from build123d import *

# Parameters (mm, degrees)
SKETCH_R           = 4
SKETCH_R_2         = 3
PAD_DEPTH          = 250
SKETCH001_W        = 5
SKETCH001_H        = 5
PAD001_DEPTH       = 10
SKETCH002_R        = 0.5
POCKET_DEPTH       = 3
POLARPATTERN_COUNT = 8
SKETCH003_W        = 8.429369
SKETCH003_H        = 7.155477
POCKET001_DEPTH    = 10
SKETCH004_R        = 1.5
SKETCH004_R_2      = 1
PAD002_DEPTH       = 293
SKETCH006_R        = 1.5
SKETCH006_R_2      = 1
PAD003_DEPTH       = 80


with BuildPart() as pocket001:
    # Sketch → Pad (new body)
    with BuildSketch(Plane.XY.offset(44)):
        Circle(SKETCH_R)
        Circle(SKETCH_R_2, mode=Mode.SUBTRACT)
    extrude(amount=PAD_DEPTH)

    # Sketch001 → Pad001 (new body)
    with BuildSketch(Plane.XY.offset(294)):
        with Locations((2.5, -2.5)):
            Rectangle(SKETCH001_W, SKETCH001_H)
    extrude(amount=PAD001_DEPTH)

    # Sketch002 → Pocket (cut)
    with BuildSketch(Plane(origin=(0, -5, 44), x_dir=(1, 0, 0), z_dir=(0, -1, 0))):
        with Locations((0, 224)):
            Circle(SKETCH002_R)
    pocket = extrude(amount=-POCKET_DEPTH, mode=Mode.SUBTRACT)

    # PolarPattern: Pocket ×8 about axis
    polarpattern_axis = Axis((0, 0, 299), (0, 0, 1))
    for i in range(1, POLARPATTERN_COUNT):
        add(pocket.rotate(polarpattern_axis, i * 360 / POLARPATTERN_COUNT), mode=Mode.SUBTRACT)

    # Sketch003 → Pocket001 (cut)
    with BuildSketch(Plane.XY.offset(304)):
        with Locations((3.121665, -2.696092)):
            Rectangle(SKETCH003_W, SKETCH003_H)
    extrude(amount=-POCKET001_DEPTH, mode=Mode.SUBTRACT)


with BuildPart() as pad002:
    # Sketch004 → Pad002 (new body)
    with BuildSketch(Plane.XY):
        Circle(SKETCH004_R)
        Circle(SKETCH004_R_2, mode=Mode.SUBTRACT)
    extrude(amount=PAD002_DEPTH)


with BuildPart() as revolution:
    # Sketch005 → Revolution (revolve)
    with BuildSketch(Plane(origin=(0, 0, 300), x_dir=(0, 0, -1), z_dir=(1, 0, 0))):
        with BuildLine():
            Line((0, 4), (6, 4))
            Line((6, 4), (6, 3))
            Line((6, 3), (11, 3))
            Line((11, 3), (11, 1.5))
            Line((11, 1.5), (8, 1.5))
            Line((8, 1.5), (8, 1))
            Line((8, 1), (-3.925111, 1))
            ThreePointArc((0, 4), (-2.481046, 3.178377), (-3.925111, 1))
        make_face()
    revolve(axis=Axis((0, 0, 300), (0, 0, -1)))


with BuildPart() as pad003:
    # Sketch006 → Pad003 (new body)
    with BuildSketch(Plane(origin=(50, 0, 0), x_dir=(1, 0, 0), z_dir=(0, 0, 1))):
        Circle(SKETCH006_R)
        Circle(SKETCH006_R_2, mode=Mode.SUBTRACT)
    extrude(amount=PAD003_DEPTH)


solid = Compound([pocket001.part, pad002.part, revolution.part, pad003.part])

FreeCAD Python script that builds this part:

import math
import FreeCAD as App
import Part
import Sketcher
from FreeCAD import Vector

doc = App.newDocument("Part")
body = doc.addObject("PartDesign::Body", "Body")

# Sketch on XY plane
sketch1 = doc.addObject("Sketcher::SketchObject", "Sketch")
body.addObject(sketch1)
sketch1.AttachmentSupport = (doc.XY_Plane, [""])
sketch1.MapMode = "FlatFace"
sketch1.AttachmentOffset = App.Placement(Vector(0, 0, 44), App.Rotation())
sketch1.addGeometry([
    Part.Circle(Vector(0, 0, 0), Vector(0, 0, 1), 4),
    Part.Circle(Vector(0, 0, 0), Vector(0, 0, 1), 3),
], False)
sketch1.addConstraint([
    Sketcher.Constraint("Coincident", 0, 3, -1, 1),
    Sketcher.Constraint("Coincident", 1, 3, -1, 1),
    Sketcher.Constraint("Diameter", 0, 8.0),
    Sketcher.Constraint("Diameter", 1, 6.0),
])
pad1 = doc.addObject("PartDesign::Pad", "Pad")
body.addObject(pad1)
pad1.Profile = sketch1
pad1.Length = 250

# Sketch on XY plane
sketch2 = doc.addObject("Sketcher::SketchObject", "Sketch001")
body.addObject(sketch2)
sketch2.AttachmentSupport = (doc.XY_Plane, [""])
sketch2.MapMode = "FlatFace"
sketch2.AttachmentOffset = App.Placement(Vector(0, 0, 294), App.Rotation())
sketch2.addGeometry([
    Part.LineSegment(Vector(0, 0, 0), Vector(0, -5, 0)),
    Part.LineSegment(Vector(0, -5, 0), Vector(5, -5, 0)),
    Part.LineSegment(Vector(5, -5, 0), Vector(5, 0, 0)),
    Part.LineSegment(Vector(5, 0, 0), Vector(0, 0, 0)),
], False)
sketch2.addConstraint([
    Sketcher.Constraint("Coincident", 0, 2, 1, 1),
    Sketcher.Constraint("Coincident", 1, 2, 2, 1),
    Sketcher.Constraint("Coincident", 2, 2, 3, 1),
    Sketcher.Constraint("Coincident", 3, 2, 0, 1),
    Sketcher.Constraint("Vertical", 0),
    Sketcher.Constraint("Horizontal", 1),
    Sketcher.Constraint("Vertical", 2),
    Sketcher.Constraint("Horizontal", 3),
    Sketcher.Constraint("Coincident", 3, 2, -1, 1),
    Sketcher.Constraint("Equal", 3, 0),
    Sketcher.Constraint("DistanceX", 1, 1, 1, 2, 5.0),
])
pad2 = doc.addObject("PartDesign::Pad", "Pad001")
body.addObject(pad2)
pad2.Profile = sketch2
pad2.Length = 10

# Sketch on XZ plane
sketch3 = doc.addObject("Sketcher::SketchObject", "Sketch002")
body.addObject(sketch3)
sketch3.AttachmentSupport = (doc.XZ_Plane, [""])
sketch3.MapMode = "FlatFace"
sketch3.AttachmentOffset = App.Placement(Vector(0, 0, 5), App.Rotation())
sketch3.addGeometry(Part.Circle(Vector(0, 268, 0), Vector(0, 0, 1), 0.5), False)
sketch3.addConstraint([
    Sketcher.Constraint("PointOnObject", 0, 3, -2),
    Sketcher.Constraint("Diameter", 0, 1.0),
    Sketcher.Constraint("DistanceY", -1, 1, 0, 3, 268.0),
])
pocket1 = doc.addObject("PartDesign::Pocket", "Pocket")
body.addObject(pocket1)
pocket1.Profile = sketch3
pocket1.Length = 3
doc.recompute()

polarpattern = doc.addObject("PartDesign::PolarPattern", "PolarPattern")
body.addObject(polarpattern)
polarpattern.Originals = [pocket1]
polarpattern.Axis = (doc.Z_Axis, [""])
polarpattern.Angle = 360
polarpattern.Occurrences = 8
body.Tip = polarpattern

# Sketch on XY plane
sketch4 = doc.addObject("Sketcher::SketchObject", "Sketch003")
body.addObject(sketch4)
sketch4.AttachmentSupport = (doc.XY_Plane, [""])
sketch4.MapMode = "FlatFace"
sketch4.AttachmentOffset = App.Placement(Vector(0, 0, 304), App.Rotation())
sketch4.addGeometry([
    Part.LineSegment(Vector(-1.09302, 0.881646, 0), Vector(-1.09302, -6.27383, 0)),
    Part.LineSegment(Vector(-1.09302, -6.27383, 0), Vector(7.336349, -6.27383, 0)),
    Part.LineSegment(Vector(7.336349, -6.27383, 0), Vector(7.336349, 0.881646, 0)),
    Part.LineSegment(Vector(7.336349, 0.881646, 0), Vector(-1.09302, 0.881646, 0)),
], False)
sketch4.addConstraint([
    Sketcher.Constraint("Coincident", 0, 2, 1, 1),
    Sketcher.Constraint("Coincident", 1, 2, 2, 1),
    Sketcher.Constraint("Coincident", 2, 2, 3, 1),
    Sketcher.Constraint("Coincident", 3, 2, 0, 1),
    Sketcher.Constraint("Vertical", 0),
    Sketcher.Constraint("Horizontal", 1),
    Sketcher.Constraint("Vertical", 2),
    Sketcher.Constraint("Horizontal", 3),
    Sketcher.Constraint("DistanceX", 1, 1, 1, 2, 8.429369),
    Sketcher.Constraint("DistanceY", 0, 2, 0, 1, 7.155477),
    Sketcher.Constraint("DistanceX", 0, 2, -1, 1, 1.09302),
    Sketcher.Constraint("DistanceY", 0, 2, -1, 1, 6.27383),
])
pocket2 = doc.addObject("PartDesign::Pocket", "Pocket001")
body.addObject(pocket2)
pocket2.Profile = sketch4
pocket2.Length = 10
body2 = doc.addObject("PartDesign::Body", "Body001")

# Sketch on XY plane
sketch5 = doc.addObject("Sketcher::SketchObject", "Sketch004")
body2.addObject(sketch5)
sketch5.AttachmentSupport = (doc.getObject("XY_Plane001"), [""])
sketch5.MapMode = "FlatFace"
sketch5.addGeometry([
    Part.Circle(Vector(0, 0, 0), Vector(0, 0, 1), 1.5),
    Part.Circle(Vector(0, 0, 0), Vector(0, 0, 1), 1),
], False)
sketch5.addConstraint([
    Sketcher.Constraint("Coincident", 0, 3, -1, 1),
    Sketcher.Constraint("Coincident", 1, 3, -1, 1),
    Sketcher.Constraint("Diameter", 0, 3.0),
    Sketcher.Constraint("Diameter", 1, 2.0),
])
pad3 = doc.addObject("PartDesign::Pad", "Pad002")
body2.addObject(pad3)
pad3.Profile = sketch5
pad3.Length = 293
body3 = doc.addObject("PartDesign::Body", "Body002")

# Sketch on YZ plane
sketch6 = doc.addObject("Sketcher::SketchObject", "Sketch005")
body3.addObject(sketch6)
sketch6.AttachmentSupport = (doc.getObject("YZ_Plane002"), [""])
sketch6.MapMode = "FlatFace"
sketch6.addGeometry([
    Part.LineSegment(Vector(4, 294, 0), Vector(4, 300, 0)),  # 0
    Part.ArcOfCircle(Part.Circle(Vector(0.000337, 300.052039, 0), Vector(0, 0, 1), 4.000001), math.radians(-0.745429), math.radians(75.527482)),  # 1
    Part.LineSegment(Vector(1, 303.925111, 0), Vector(1, 292, 0)),  # 2
    Part.LineSegment(Vector(1, 292, 0), Vector(1.5, 292, 0)),  # 3
    Part.LineSegment(Vector(1.5, 292, 0), Vector(1.5, 289, 0)),  # 4
    Part.LineSegment(Vector(1.5, 289, 0), Vector(3, 289, 0)),  # 5
    Part.LineSegment(Vector(3, 289, 0), Vector(3, 294, 0)),  # 6
    Part.LineSegment(Vector(3, 294, 0), Vector(4, 294, 0)),  # 7
], False)
sketch6.addConstraint([
    Sketcher.Constraint("Coincident", 0, 2, 1, 1),
    Sketcher.Constraint("Coincident", 1, 2, 2, 1),
    Sketcher.Constraint("Coincident", 2, 2, 3, 1),
    Sketcher.Constraint("Coincident", 3, 2, 4, 1),
    Sketcher.Constraint("Coincident", 4, 2, 5, 1),
    Sketcher.Constraint("Coincident", 5, 2, 6, 1),
    Sketcher.Constraint("Coincident", 6, 2, 7, 1),
    Sketcher.Constraint("Coincident", 7, 2, 0, 1),
    Sketcher.Constraint("Vertical", 0),
    Sketcher.Constraint("Vertical", 2),
    Sketcher.Constraint("Horizontal", 3),
    Sketcher.Constraint("Vertical", 4),
    Sketcher.Constraint("Horizontal", 5),
    Sketcher.Constraint("Vertical", 6),
    Sketcher.Constraint("Horizontal", 7),
    Sketcher.Constraint("Radius", 1, 4.000001),
    Sketcher.Constraint("DistanceX", 7, 1, 7, 2, 1.0),
    Sketcher.Constraint("DistanceY", 0, 1, 0, 2, 6.0),
    Sketcher.Constraint("DistanceY", 4, 2, 4, 1, 3.0),
    Sketcher.Constraint("DistanceY", 6, 1, 6, 2, 5.0),
    Sketcher.Constraint("DistanceX", 3, 1, 3, 2, 0.5),
    Sketcher.Constraint("DistanceX", 5, 1, 5, 2, 1.5),
    Sketcher.Constraint("DistanceX", -1, 1, 0, 2, 4.0),
    Sketcher.Constraint("DistanceY", -1, 1, 0, 2, 300.0),
    Sketcher.Constraint("DistanceY", 2, 2, 2, 1, 11.925111),
])
revolution = doc.addObject("PartDesign::Revolution", "Revolution")
body3.addObject(revolution)
revolution.Profile = sketch6
revolution.ReferenceAxis = (sketch6, ["V_Axis"])
revolution.Angle = 360
body4 = doc.addObject("PartDesign::Body", "Body003")

# Sketch on XY plane
sketch7 = doc.addObject("Sketcher::SketchObject", "Sketch006")
body4.addObject(sketch7)
sketch7.AttachmentSupport = (doc.getObject("XY_Plane003"), [""])
sketch7.MapMode = "FlatFace"
sketch7.addGeometry([
    Part.Circle(Vector(50, 0, 0), Vector(0, 0, 1), 1.5),
    Part.Circle(Vector(50, 0, 0), Vector(0, 0, 1), 1),
], False)
sketch7.addConstraint([
    Sketcher.Constraint("Coincident", 1, 3, 0, 3),
    Sketcher.Constraint("PointOnObject", 0, 3, -1),
    Sketcher.Constraint("Diameter", 0, 3.0),
    Sketcher.Constraint("Diameter", 1, 2.0),
    Sketcher.Constraint("DistanceX", -1, 1, 0, 3, 50.0),
])
pad4 = doc.addObject("PartDesign::Pad", "Pad003")
body4.addObject(pad4)
pad4.Profile = sketch7
pad4.Length = 80

doc.recompute()
